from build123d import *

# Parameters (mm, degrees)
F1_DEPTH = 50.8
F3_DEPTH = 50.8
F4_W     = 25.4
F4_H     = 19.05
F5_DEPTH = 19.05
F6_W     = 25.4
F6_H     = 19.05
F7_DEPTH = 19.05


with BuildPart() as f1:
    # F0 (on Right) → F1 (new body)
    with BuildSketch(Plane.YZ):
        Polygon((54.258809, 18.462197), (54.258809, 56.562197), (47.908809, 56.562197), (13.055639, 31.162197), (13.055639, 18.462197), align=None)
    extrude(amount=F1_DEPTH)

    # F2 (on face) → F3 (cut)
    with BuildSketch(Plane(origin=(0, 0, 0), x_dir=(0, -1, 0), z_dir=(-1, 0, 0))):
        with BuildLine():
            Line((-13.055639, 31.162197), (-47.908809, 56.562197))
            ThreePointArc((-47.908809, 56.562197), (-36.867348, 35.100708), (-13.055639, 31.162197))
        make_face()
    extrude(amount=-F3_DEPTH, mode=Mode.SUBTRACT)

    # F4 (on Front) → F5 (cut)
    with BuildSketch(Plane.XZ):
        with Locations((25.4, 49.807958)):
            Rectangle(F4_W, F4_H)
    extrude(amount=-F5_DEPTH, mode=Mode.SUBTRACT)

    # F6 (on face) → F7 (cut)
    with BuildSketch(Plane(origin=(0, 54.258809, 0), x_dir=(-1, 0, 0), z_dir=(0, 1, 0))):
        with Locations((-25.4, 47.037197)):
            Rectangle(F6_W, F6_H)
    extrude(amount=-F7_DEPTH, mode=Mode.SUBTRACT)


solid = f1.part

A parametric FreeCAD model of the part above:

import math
import FreeCAD as App
import Part
import Sketcher
Q = App.Units.Quantity

doc = App.newDocument("Part")
body = doc.addObject("PartDesign::Body", "Body")

# Sketch on YZ plane
sketch1 = body.newObject("Sketcher::SketchObject", "Sketch")
sketch1.AttachmentSupport = (doc.getObject("YZ_Plane"), [""])
sketch1.MapMode = "FlatFace"
sketch1.addGeometry([
    Part.LineSegment(App.Vector(54, 18, 0), App.Vector(54, 57, 0)),  # 0
    Part.LineSegment(App.Vector(54, 57, 0), App.Vector(48, 57, 0)),  # 1
    Part.LineSegment(App.Vector(48, 57, 0), App.Vector(13, 31, 0)),  # 2
    Part.LineSegment(App.Vector(13, 31, 0), App.Vector(13, 18, 0)),  # 3
    Part.LineSegment(App.Vector(13, 18, 0), App.Vector(54, 18, 0)),  # 4
], False)
sketch1.addConstraint([
    Sketcher.Constraint("Coincident", 0, 2, 1, 1),
    Sketcher.Constraint("Coincident", 1, 2, 2, 1),
    Sketcher.Constraint("Coincident", 2, 2, 3, 1),
    Sketcher.Constraint("Coincident", 3, 2, 4, 1),
    Sketcher.Constraint("Coincident", 4, 2, 0, 1),
    Sketcher.Constraint("Vertical", 0),
    Sketcher.Constraint("Horizontal", 1),
    Sketcher.Constraint("Vertical", 3),
    Sketcher.Constraint("Horizontal", 4),
    Sketcher.Constraint("DistanceY", 0, 1, 0, 2, Q("1.5 in")),
    Sketcher.Constraint("DistanceY", 3, 2, 3, 1, Q("0.5 in")),
    Sketcher.Constraint("DistanceX", 1, 2, 1, 1, Q("0.25 in")),
    Sketcher.Constraint("Distance", 2, 43.126598),
    Sketcher.Constraint("DistanceX", -1, 1, 0, 2, 54.258809),
    Sketcher.Constraint("DistanceY", -1, 1, 0, 2, 56.562197),
])
pad1 = body.newObject("PartDesign::Pad", "Pad")
pad1.Profile = sketch1
pad1.Length = Q("2 in")

# Sketch on YZ plane
sketch2 = body.newObject("Sketcher::SketchObject", "Sketch001")
sketch2.AttachmentSupport = (doc.getObject("YZ_Plane"), [""])
sketch2.MapMode = "FlatFace"
sketch2.addGeometry([
    Part.LineSegment(App.Vector(13, 31, 0), App.Vector(48, 57, 0)),
    Part.ArcOfCircle(Part.Circle(App.Vector(21, 57, 0), App.Vector(0, 0, 1), 27), math.radians(-107), math.radians(-1)),
], False)
sketch2.addConstraint([
    Sketcher.Constraint("Coincident", 0, 1, 1, 1),
    Sketcher.Constraint("Coincident", 1, 2, 0, 2),
    Sketcher.Constraint("DistanceY", 0, 1, 1, 2, Q("1 in")),
    Sketcher.Constraint("DistanceY", -1, 1, 1, 3, Q("2.2366998 in")),
    Sketcher.Constraint("Radius", 1, 26.865324),
    Sketcher.Constraint("Distance", 0, 43.126598),
    Sketcher.Constraint("DistanceX", -1, 1, 0, 1, 13.055639),
])
pocket1 = body.newObject("PartDesign::Pocket", "Pocket")
pocket1.Profile = sketch2
pocket1.Length = Q("2 in")
pocket1.Reversed = True

# Sketch on XZ plane
sketch3 = body.newObject("Sketcher::SketchObject", "Sketch002")
sketch3.AttachmentSupport = (doc.getObject("XZ_Plane"), [""])
sketch3.MapMode = "FlatFace"
sketch3.addGeometry([
    Part.LineSegment(App.Vector(13, 59, 0), App.Vector(13, 40, 0)),
    Part.LineSegment(App.Vector(13, 40, 0), App.Vector(38, 40, 0)),
    Part.LineSegment(App.Vector(38, 40, 0), App.Vector(38, 59, 0)),
    Part.LineSegment(App.Vector(38, 59, 0), App.Vector(13, 59, 0)),
], False)
sketch3.addConstraint([
    Sketcher.Constraint("Coincident", 0, 2, 1, 1),
    Sketcher.Constraint("Coincident", 1, 2, 2, 1),
    Sketcher.Constraint("Coincident", 2, 2, 3, 1),
    Sketcher.Constraint("Coincident", 3, 2, 0, 1),
    Sketcher.Constraint("Vertical", 0),
    Sketcher.Constraint("Horizontal", 1),
    Sketcher.Constraint("Vertical", 2),
    Sketcher.Constraint("Horizontal", 3),
    Sketcher.Constraint("DistanceX", 1, 1, 1, 2, Q("1 in")),
    Sketcher.Constraint("DistanceY", 0, 2, 0, 1, Q("0.75 in")),
    Sketcher.Constraint("DistanceX", -1, 1, 0, 2, Q("0.5 in")),
    Sketcher.Constraint("DistanceY", -1, 1, 0, 2, 40.282958),
])
pocket2 = body.newObject("PartDesign::Pocket", "Pocket001")
pocket2.Profile = sketch3
pocket2.Length = Q("0.75 in")

# Sketch on XZ plane
sketch4 = body.newObject("Sketcher::SketchObject", "Sketch003")
sketch4.AttachmentSupport = (doc.getObject("XZ_Plane"), [""])
sketch4.MapMode = "FlatFace"
sketch4.AttachmentOffset = App.Placement(App.Vector(0, 0, -54.258809), App.Rotation())
sketch4.addGeometry([
    Part.LineSegment(App.Vector(38, 57, 0), App.Vector(38, 38, 0)),
    Part.LineSegment(App.Vector(38, 38, 0), App.Vector(13, 38, 0)),
    Part.LineSegment(App.Vector(13, 38, 0), App.Vector(13, 57, 0)),
    Part.LineSegment(App.Vector(13, 57, 0), App.Vector(38, 57, 0)),
], False)
sketch4.addConstraint([
    Sketcher.Constraint("Coincident", 0, 2, 1, 1),
    Sketcher.Constraint("Coincident", 1, 2, 2, 1),
    Sketcher.Constraint("Coincident", 2, 2, 3, 1),
    Sketcher.Constraint("Coincident", 3, 2, 0, 1),
    Sketcher.Constraint("Vertical", 0),
    Sketcher.Constraint("Horizontal", 1),
    Sketcher.Constraint("Vertical", 2),
    Sketcher.Constraint("Horizontal", 3),
    Sketcher.Constraint("DistanceX", 1, 2, 1, 1, Q("1 in")),
    Sketcher.Constraint("DistanceY", 0, 2, 0, 1, Q("0.75 in")),
    Sketcher.Constraint("DistanceX", -1, 1, 0, 2, Q("1.5 in")),
    Sketcher.Constraint("DistanceY", -1, 1, 0, 2, 37.512197),
])
pocket3 = body.newObject("PartDesign::Pocket", "Pocket002")
pocket3.Profile = sketch4
pocket3.Length = Q("0.75 in")
pocket3.Reversed = True

doc.recompute()
